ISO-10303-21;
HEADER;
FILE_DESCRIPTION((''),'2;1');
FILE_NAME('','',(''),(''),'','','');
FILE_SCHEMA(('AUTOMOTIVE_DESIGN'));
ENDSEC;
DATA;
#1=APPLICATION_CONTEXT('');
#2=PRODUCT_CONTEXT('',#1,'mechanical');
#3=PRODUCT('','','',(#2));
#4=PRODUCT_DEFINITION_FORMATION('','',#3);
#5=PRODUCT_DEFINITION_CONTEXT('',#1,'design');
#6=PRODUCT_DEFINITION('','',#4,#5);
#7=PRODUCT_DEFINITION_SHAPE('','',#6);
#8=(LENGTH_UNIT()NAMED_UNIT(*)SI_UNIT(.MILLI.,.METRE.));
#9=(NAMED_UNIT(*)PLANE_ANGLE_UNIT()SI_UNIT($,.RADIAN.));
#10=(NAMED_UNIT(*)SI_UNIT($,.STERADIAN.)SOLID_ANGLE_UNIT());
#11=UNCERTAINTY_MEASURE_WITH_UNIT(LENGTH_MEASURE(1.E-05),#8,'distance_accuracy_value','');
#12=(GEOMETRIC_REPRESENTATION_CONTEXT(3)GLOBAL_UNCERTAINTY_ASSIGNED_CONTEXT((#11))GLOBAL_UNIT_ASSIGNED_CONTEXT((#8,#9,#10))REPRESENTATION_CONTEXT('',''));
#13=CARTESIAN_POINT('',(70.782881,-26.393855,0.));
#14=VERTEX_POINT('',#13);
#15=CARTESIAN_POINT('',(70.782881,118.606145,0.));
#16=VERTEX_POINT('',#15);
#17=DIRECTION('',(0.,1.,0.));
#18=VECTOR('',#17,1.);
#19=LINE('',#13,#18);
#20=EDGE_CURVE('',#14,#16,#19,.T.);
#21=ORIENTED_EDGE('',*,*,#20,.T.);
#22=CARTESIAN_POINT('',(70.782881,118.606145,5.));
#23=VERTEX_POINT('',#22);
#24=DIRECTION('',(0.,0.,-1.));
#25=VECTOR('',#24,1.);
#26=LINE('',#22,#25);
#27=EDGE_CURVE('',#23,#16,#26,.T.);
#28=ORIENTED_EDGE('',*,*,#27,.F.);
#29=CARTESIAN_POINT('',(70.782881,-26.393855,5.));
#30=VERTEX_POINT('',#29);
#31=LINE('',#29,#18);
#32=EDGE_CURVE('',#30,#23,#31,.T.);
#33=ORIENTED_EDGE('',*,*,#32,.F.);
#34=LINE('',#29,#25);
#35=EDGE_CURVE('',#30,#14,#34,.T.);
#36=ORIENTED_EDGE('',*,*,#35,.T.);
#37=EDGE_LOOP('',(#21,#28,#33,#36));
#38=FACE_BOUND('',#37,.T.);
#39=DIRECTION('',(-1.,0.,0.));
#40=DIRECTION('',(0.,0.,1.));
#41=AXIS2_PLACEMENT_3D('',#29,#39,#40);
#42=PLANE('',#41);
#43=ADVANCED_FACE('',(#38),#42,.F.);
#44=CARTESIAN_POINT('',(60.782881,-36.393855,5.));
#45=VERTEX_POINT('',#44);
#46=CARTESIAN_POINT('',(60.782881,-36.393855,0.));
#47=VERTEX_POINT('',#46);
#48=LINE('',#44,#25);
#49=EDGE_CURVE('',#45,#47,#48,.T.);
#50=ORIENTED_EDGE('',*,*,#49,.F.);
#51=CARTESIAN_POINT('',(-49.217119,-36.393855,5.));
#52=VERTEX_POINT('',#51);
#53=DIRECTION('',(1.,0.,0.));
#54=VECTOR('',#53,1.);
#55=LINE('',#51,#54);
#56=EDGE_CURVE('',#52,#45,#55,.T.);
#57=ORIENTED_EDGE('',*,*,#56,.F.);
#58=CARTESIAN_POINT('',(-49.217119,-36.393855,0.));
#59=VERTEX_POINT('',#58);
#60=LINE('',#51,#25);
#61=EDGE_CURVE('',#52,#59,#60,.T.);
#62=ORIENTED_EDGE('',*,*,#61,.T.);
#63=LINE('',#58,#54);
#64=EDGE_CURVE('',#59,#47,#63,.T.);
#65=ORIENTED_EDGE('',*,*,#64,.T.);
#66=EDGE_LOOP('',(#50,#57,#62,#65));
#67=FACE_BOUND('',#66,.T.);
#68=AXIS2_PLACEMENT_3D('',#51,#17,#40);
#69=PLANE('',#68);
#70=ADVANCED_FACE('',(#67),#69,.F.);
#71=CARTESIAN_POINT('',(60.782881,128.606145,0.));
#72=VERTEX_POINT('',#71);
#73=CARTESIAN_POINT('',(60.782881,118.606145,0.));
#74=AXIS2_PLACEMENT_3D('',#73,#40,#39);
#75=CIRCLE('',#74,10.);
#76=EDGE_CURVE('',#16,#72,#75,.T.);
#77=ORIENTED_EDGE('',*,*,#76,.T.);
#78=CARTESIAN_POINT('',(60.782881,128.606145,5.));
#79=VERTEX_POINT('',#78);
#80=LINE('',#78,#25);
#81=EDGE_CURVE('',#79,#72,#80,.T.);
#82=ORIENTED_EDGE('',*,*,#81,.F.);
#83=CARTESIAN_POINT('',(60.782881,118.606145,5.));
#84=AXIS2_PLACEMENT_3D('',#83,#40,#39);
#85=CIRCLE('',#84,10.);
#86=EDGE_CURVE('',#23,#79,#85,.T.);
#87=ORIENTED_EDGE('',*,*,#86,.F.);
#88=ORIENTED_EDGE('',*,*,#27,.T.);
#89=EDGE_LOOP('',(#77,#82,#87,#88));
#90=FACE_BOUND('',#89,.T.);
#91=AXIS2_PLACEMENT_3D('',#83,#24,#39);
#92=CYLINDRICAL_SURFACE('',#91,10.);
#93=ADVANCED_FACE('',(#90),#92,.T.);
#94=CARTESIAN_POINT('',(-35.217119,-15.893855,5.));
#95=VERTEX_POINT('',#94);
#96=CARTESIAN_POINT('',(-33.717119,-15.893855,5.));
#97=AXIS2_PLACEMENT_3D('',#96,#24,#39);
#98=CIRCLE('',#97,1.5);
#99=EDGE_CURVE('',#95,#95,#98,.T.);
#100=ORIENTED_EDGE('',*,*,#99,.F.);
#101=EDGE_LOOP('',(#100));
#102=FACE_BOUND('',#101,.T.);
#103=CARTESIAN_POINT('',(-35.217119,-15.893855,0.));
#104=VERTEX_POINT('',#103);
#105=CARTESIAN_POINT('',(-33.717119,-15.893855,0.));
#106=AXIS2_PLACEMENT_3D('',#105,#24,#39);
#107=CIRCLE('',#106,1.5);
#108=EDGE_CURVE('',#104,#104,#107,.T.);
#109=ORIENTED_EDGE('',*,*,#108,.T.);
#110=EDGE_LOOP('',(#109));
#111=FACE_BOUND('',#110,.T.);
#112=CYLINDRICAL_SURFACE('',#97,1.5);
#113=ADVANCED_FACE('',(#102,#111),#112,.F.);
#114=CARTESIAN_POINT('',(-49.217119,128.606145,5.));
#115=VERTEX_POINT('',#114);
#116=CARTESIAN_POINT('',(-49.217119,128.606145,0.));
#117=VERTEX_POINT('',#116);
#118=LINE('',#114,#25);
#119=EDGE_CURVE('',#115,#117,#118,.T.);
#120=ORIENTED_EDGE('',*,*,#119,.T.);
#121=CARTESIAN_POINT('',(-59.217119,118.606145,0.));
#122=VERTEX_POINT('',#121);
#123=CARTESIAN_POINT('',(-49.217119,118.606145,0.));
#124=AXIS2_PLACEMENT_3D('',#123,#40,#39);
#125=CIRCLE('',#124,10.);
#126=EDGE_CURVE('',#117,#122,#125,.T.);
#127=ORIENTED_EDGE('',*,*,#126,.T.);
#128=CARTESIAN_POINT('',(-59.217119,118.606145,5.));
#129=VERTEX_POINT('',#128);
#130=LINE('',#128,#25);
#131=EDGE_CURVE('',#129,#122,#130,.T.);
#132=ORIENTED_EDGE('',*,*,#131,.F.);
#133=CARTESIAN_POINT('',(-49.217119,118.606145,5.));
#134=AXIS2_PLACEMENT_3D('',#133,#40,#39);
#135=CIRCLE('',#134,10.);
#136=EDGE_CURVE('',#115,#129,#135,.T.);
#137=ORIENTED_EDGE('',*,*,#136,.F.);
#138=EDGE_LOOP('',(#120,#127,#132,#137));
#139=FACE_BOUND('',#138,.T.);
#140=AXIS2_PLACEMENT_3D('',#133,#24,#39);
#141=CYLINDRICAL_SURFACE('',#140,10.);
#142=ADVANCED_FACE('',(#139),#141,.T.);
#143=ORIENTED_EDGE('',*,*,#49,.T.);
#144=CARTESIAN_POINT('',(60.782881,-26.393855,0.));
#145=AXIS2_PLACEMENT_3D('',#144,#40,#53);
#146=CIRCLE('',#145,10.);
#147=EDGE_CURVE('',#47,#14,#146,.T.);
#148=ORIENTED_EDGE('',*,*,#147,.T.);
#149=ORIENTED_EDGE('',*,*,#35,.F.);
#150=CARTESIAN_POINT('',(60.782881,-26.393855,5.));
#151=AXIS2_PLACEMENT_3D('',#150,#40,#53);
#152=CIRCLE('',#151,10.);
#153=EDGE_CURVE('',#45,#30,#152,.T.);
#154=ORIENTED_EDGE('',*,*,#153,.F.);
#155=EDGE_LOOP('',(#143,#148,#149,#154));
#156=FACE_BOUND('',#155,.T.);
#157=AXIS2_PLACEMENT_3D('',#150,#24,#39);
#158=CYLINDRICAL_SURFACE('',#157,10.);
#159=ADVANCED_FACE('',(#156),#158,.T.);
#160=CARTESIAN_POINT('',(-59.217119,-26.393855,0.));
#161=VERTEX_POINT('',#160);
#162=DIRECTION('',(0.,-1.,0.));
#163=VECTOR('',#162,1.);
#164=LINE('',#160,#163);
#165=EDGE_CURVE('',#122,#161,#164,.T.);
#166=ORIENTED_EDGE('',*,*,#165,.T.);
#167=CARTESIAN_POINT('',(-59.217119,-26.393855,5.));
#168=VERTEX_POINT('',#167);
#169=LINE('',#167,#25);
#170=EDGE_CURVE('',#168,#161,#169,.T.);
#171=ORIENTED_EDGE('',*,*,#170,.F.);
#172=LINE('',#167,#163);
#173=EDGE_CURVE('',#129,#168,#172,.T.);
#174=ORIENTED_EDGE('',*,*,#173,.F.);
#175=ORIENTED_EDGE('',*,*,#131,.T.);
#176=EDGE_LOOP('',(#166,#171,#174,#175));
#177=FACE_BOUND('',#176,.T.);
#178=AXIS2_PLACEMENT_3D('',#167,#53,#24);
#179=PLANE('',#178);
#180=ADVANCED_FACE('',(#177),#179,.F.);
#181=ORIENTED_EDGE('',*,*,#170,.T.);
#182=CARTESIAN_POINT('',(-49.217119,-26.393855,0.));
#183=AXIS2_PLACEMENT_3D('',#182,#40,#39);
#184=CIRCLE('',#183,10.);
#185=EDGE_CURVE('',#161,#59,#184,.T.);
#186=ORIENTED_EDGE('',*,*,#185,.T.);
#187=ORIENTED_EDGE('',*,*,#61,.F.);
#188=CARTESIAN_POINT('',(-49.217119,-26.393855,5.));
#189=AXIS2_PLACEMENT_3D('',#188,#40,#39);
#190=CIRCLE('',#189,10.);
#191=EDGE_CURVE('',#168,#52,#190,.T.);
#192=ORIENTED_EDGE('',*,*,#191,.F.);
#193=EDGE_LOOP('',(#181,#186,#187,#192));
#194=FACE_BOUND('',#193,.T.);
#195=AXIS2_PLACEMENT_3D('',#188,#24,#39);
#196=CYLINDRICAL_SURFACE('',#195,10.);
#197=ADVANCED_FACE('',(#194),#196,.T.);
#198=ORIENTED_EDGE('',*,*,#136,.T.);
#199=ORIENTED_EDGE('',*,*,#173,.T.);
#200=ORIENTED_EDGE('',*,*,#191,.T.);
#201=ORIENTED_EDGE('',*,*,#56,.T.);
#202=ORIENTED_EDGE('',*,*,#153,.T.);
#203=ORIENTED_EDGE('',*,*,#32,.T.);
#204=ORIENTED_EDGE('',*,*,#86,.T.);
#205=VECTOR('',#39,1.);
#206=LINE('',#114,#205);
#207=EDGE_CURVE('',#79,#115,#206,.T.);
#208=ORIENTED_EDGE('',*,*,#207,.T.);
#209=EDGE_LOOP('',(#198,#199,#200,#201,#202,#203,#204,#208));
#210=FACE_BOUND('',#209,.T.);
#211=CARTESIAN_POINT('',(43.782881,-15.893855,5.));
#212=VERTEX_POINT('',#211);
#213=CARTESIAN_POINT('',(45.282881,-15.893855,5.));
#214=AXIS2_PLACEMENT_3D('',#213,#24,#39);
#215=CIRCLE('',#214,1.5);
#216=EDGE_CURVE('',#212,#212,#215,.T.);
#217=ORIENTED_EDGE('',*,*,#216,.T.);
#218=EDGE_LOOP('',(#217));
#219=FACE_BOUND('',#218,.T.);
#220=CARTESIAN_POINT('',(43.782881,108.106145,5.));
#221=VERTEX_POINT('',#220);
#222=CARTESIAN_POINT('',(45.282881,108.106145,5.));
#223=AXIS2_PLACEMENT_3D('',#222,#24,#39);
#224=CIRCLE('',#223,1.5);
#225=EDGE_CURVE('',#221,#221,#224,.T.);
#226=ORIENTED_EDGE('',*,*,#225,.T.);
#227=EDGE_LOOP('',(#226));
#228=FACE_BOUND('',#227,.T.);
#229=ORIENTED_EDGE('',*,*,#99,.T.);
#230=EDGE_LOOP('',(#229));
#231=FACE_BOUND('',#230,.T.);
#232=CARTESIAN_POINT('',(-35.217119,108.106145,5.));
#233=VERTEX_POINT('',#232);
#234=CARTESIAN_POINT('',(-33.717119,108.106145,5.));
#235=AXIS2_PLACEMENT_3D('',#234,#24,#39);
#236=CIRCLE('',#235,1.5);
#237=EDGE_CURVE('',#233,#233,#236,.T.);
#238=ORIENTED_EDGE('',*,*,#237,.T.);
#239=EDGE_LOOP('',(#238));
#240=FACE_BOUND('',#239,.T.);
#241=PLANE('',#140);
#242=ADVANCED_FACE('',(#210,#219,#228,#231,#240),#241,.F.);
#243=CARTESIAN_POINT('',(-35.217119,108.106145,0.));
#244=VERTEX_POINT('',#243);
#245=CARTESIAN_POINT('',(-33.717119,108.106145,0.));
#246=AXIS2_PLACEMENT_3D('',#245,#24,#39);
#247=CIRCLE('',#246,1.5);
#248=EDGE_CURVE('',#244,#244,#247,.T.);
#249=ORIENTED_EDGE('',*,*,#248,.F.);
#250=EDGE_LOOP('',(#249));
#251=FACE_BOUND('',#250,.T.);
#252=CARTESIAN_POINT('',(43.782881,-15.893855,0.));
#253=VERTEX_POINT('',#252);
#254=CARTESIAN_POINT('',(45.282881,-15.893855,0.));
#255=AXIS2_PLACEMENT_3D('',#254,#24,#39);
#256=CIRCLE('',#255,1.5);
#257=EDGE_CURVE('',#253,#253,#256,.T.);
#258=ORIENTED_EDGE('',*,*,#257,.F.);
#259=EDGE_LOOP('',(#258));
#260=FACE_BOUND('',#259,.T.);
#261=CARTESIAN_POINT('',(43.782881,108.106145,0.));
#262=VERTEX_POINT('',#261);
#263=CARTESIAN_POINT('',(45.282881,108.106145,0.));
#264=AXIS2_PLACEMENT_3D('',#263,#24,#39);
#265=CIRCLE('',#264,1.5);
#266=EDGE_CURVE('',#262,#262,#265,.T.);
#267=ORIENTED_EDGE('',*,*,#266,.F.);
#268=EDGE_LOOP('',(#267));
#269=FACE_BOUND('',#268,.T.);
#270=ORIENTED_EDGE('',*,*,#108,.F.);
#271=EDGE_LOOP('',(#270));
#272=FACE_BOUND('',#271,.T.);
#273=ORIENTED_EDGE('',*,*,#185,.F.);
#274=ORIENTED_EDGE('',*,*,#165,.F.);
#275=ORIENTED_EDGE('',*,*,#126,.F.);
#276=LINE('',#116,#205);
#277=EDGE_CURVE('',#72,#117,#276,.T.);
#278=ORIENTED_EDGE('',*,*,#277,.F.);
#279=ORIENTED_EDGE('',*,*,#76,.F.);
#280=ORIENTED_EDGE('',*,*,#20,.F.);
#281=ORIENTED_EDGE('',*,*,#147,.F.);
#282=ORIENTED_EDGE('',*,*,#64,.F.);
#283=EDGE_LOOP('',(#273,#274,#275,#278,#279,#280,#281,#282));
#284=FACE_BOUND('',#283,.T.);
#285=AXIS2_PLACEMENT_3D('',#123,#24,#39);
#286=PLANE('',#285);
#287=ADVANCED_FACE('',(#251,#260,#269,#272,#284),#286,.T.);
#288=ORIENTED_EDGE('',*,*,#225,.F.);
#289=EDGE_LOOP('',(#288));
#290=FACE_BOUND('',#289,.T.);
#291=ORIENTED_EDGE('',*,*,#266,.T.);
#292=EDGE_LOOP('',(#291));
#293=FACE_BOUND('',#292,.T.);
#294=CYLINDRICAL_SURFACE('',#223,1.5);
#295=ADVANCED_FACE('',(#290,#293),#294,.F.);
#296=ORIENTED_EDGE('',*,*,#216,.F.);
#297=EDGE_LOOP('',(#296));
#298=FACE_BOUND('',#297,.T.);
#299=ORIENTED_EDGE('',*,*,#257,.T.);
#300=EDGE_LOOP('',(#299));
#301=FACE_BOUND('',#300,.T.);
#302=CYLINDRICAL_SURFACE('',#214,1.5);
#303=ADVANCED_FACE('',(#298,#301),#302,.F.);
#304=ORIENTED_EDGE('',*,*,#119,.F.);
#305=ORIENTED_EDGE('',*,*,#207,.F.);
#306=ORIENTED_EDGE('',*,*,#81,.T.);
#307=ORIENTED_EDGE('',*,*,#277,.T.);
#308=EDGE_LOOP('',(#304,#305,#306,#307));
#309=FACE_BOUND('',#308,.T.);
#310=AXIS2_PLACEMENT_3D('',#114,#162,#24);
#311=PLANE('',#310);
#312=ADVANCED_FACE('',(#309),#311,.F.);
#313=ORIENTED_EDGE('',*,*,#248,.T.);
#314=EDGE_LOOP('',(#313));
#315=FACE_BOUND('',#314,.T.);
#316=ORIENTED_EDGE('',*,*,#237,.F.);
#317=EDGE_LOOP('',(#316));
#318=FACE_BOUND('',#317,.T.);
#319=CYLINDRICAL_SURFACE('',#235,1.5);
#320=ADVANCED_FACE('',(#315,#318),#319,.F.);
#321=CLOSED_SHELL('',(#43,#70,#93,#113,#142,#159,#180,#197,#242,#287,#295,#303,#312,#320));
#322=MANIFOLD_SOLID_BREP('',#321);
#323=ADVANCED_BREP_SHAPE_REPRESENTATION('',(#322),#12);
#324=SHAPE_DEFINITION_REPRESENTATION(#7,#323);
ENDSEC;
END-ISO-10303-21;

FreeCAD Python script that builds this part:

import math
import FreeCAD as App
import Part
import Sketcher

V = App.Vector

doc = App.newDocument("Part")
body = doc.addObject("PartDesign::Body", "Body")

# Sketch on XY plane
sketch1 = body.newObject("Sketcher::SketchObject", "Sketch")
sketch1.AttachmentSupport = (doc.getObject("XY_Plane"), [""])
sketch1.MapMode = "FlatFace"
sketch1.addGeometry([
    Part.LineSegment(V(-49, -36, 0), V(61, -36, 0)),  # 0
    Part.ArcOfCircle(Part.Circle(V(61, -26, 0), V(0, 0, 1), 10), math.radians(-90), math.radians(0)),  # 1
    Part.LineSegment(V(71, -26, 0), V(71, 119, 0)),  # 2
    Part.ArcOfCircle(Part.Circle(V(61, 119, 0), V(0, 0, 1), 10), math.radians(0), math.radians(90)),  # 3
    Part.LineSegment(V(61, 129, 0), V(-49, 129, 0)),  # 4
    Part.ArcOfCircle(Part.Circle(V(-49, 119, 0), V(0, 0, 1), 10), math.radians(90), math.radians(180)),  # 5
    Part.LineSegment(V(-59, 119, 0), V(-59, -26, 0)),  # 6
    Part.ArcOfCircle(Part.Circle(V(-49, -26, 0), V(0, 0, 1), 10), math.radians(180), math.radians(270)),  # 7
], False)
sketch1.addConstraint([
    Sketcher.Constraint("Tangent", 0, 2, 1, 1),
    Sketcher.Constraint("Tangent", 1, 2, 2, 1),
    Sketcher.Constraint("Tangent", 2, 2, 3, 1),
    Sketcher.Constraint("Tangent", 3, 2, 4, 1),
    Sketcher.Constraint("Tangent", 4, 2, 5, 1),
    Sketcher.Constraint("Tangent", 5, 2, 6, 1),
    Sketcher.Constraint("Tangent", 6, 2, 7, 1),
    Sketcher.Constraint("Tangent", 7, 2, 0, 1),
    Sketcher.Constraint("Horizontal", 0),
    Sketcher.Constraint("Vertical", 2),
    Sketcher.Constraint("Horizontal", 4),
    Sketcher.Constraint("Vertical", 6),
    Sketcher.Constraint("Equal", 1, 3),
    Sketcher.Constraint("Equal", 3, 5),
    Sketcher.Constraint("Equal", 5, 7),
    Sketcher.Constraint("Radius", 1, 10.0),
    Sketcher.Constraint("DistanceX", 0, 1, 0, 2, 110.0),
    Sketcher.Constraint("DistanceY", 2, 1, 2, 2, 145.0),
    Sketcher.Constraint("DistanceX", -1, 1, 1, 3, 60.782881),
    Sketcher.Constraint("DistanceY", 1, 3, -1, 1, 26.393855),
])
pad1 = body.newObject("PartDesign::Pad", "Pad")
pad1.Profile = sketch1
pad1.Length = 5

# Sketch on XY plane
sketch2 = body.newObject("Sketcher::SketchObject", "Sketch001")
sketch2.AttachmentSupport = (doc.getObject("XY_Plane"), [""])
sketch2.MapMode = "FlatFace"
sketch2.addGeometry([
    Part.Circle(V(-33.7, -15.9, 0), V(0, 0, 1), 1.5),
    Part.Circle(V(-33.7, 108.1, 0), V(0, 0, 1), 1.5),
    Part.Circle(V(45.3, -15.9, 0), V(0, 0, 1), 1.5),
    Part.Circle(V(45.3, 108.1, 0), V(0, 0, 1), 1.5),
], False)
sketch2.addConstraint([
    Sketcher.Constraint("Equal", 0, 1),
    Sketcher.Constraint("Equal", 1, 2),
    Sketcher.Constraint("Equal", 2, 3),
    Sketcher.Constraint("Horizontal", 0, 3, 2, 3),
    Sketcher.Constraint("Horizontal", 1, 3, 3, 3),
    Sketcher.Constraint("Vertical", 0, 3, 1, 3),
    Sketcher.Constraint("Vertical", 2, 3, 3, 3),
    Sketcher.Constraint("Diameter", 0, 3.0),
    Sketcher.Constraint("DistanceY", 0, 3, 1, 3, 124.0),
    Sketcher.Constraint("DistanceX", 0, 3, 2, 3, 79.0),
    Sketcher.Constraint("DistanceX", 0, 3, -1, 1, 33.717119),
    Sketcher.Constraint("DistanceY", 0, 3, -1, 1, 15.893855),
])
pocket1 = body.newObject("PartDesign::Pocket", "Pocket")
pocket1.Profile = sketch2
pocket1.Length = 5
pocket1.Reversed = True

doc.recompute()
